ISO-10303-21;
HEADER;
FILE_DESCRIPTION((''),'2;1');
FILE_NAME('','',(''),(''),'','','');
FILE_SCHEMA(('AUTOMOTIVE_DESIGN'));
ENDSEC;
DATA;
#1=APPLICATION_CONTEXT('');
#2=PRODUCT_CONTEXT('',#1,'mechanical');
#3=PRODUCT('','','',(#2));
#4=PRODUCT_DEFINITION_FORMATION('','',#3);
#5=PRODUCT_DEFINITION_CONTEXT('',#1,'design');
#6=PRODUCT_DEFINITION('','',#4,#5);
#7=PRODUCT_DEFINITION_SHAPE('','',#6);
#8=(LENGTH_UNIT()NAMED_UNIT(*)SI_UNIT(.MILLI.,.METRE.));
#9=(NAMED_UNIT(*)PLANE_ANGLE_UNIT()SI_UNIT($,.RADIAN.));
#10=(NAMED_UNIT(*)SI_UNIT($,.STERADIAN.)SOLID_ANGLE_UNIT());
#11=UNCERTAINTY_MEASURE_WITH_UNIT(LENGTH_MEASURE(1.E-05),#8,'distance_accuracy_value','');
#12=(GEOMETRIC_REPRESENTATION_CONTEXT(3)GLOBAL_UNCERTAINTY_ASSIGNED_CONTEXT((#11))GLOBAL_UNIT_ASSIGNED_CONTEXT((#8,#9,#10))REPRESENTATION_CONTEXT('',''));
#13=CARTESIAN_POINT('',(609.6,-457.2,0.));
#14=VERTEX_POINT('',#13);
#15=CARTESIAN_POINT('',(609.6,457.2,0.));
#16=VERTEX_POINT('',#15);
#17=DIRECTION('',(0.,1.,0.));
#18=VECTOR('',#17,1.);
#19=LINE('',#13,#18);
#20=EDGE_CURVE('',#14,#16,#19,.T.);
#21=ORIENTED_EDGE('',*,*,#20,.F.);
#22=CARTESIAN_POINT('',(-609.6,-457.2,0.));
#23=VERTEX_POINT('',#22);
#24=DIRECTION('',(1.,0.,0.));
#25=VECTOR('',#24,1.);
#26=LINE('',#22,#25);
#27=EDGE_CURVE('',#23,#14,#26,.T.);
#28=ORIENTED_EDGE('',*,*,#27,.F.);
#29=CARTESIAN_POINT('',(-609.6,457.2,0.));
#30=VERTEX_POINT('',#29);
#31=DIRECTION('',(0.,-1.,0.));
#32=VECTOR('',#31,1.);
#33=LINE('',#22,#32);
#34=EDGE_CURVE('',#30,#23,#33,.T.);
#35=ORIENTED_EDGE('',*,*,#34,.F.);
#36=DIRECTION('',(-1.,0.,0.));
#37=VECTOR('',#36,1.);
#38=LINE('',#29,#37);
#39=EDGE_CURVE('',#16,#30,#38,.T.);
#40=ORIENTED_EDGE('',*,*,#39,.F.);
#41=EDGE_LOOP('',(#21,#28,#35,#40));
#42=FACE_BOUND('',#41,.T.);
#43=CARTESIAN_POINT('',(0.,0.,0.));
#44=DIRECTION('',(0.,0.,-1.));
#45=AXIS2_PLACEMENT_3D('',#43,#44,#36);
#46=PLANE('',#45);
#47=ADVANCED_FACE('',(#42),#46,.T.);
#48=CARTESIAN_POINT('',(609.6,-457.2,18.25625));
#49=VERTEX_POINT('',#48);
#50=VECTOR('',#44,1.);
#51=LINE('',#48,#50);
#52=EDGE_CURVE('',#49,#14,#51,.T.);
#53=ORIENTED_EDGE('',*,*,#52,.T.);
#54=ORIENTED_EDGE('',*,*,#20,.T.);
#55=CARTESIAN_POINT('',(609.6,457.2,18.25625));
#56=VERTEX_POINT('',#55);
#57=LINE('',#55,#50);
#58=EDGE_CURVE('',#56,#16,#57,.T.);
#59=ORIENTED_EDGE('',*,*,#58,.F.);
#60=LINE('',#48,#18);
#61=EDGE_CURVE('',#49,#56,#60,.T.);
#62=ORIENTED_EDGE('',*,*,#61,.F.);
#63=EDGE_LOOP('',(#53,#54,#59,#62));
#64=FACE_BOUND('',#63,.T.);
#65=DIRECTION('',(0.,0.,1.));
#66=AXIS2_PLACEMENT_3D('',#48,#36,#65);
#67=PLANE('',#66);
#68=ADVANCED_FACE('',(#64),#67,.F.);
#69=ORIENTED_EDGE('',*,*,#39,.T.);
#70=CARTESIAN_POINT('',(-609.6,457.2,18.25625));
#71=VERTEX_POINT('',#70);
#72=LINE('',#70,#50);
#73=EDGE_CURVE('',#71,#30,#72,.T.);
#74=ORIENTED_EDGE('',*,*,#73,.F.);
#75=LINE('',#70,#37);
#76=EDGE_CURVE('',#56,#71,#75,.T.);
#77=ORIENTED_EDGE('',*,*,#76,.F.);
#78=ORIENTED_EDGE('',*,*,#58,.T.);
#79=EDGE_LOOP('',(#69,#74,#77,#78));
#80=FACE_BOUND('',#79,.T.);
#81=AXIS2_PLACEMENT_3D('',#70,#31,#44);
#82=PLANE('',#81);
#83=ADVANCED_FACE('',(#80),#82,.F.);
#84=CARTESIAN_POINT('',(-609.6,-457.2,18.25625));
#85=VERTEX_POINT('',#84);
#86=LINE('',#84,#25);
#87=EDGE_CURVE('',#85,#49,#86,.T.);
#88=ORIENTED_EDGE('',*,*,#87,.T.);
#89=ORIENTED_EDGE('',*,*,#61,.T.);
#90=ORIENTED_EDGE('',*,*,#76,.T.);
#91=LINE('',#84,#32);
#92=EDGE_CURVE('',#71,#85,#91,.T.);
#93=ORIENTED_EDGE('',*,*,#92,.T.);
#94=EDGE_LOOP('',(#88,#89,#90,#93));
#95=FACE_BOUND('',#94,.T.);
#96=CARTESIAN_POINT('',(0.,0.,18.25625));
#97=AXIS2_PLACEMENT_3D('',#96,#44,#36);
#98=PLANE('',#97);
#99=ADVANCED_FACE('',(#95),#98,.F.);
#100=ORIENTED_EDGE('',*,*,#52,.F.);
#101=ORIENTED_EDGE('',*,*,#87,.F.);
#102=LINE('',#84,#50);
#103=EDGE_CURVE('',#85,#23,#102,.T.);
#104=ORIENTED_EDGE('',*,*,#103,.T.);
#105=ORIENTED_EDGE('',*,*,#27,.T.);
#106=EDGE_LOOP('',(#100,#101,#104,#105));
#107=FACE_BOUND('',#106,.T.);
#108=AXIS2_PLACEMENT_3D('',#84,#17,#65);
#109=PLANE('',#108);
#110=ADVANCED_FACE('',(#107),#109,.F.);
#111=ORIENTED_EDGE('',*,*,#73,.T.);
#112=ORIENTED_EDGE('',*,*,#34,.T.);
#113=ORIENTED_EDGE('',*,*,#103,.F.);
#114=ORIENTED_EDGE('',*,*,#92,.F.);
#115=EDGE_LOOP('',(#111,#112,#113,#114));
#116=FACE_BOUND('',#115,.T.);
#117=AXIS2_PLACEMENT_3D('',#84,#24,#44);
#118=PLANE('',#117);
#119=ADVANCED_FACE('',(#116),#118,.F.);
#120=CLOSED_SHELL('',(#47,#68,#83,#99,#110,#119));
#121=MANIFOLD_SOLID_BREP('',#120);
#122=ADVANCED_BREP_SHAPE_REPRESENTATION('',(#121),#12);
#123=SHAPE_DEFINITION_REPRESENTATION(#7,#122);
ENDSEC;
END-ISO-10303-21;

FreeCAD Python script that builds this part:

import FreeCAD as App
import Part
import Sketcher
Q = App.Units.Quantity


def add_polygon(sketch, points):
    """Adds a closed chain of lines whose ends are joined by coincident constraints."""
    first, n = sketch.GeometryCount, len(points)
    for a, b in zip(points, points[1:] + points[:1]):
        sketch.addGeometry(Part.LineSegment(App.Vector(*a, 0), App.Vector(*b, 0)), False)
    for i in range(n):
        sketch.addConstraint(Sketcher.Constraint("Coincident", first + i, 2, first + (i + 1) % n, 1))

doc = App.newDocument("Part")
body = doc.addObject("PartDesign::Body", "Body")

sketch1 = doc.addObject("Sketcher::SketchObject", "Sketch")
body.addObject(sketch1)
sketch1.AttachmentSupport = (doc.XY_Plane, [""])
sketch1.MapMode = "FlatFace"
add_polygon(sketch1, [(-610, 457), (-610, -457), (610, -457), (610, 457)])
sketch1.addConstraint(Sketcher.Constraint("Vertical", 0))
sketch1.addConstraint(Sketcher.Constraint("Horizontal", 1))
sketch1.addConstraint(Sketcher.Constraint("Vertical", 2))
sketch1.addConstraint(Sketcher.Constraint("Horizontal", 3))
sketch1.addConstraint(Sketcher.Constraint("Symmetric", 0, 2, 2, 2, -1, 1))
sketch1.addConstraint(Sketcher.Constraint("DistanceX", 1, 1, 1, 2, Q("48 in")))
sketch1.addConstraint(Sketcher.Constraint("DistanceY", 0, 2, 0, 1, Q("36 in")))
pad1 = doc.addObject("PartDesign::Pad", "Pad")
body.addObject(pad1)
pad1.Profile = sketch1
pad1.Length = Q("0.71875 in")

doc.recompute()
